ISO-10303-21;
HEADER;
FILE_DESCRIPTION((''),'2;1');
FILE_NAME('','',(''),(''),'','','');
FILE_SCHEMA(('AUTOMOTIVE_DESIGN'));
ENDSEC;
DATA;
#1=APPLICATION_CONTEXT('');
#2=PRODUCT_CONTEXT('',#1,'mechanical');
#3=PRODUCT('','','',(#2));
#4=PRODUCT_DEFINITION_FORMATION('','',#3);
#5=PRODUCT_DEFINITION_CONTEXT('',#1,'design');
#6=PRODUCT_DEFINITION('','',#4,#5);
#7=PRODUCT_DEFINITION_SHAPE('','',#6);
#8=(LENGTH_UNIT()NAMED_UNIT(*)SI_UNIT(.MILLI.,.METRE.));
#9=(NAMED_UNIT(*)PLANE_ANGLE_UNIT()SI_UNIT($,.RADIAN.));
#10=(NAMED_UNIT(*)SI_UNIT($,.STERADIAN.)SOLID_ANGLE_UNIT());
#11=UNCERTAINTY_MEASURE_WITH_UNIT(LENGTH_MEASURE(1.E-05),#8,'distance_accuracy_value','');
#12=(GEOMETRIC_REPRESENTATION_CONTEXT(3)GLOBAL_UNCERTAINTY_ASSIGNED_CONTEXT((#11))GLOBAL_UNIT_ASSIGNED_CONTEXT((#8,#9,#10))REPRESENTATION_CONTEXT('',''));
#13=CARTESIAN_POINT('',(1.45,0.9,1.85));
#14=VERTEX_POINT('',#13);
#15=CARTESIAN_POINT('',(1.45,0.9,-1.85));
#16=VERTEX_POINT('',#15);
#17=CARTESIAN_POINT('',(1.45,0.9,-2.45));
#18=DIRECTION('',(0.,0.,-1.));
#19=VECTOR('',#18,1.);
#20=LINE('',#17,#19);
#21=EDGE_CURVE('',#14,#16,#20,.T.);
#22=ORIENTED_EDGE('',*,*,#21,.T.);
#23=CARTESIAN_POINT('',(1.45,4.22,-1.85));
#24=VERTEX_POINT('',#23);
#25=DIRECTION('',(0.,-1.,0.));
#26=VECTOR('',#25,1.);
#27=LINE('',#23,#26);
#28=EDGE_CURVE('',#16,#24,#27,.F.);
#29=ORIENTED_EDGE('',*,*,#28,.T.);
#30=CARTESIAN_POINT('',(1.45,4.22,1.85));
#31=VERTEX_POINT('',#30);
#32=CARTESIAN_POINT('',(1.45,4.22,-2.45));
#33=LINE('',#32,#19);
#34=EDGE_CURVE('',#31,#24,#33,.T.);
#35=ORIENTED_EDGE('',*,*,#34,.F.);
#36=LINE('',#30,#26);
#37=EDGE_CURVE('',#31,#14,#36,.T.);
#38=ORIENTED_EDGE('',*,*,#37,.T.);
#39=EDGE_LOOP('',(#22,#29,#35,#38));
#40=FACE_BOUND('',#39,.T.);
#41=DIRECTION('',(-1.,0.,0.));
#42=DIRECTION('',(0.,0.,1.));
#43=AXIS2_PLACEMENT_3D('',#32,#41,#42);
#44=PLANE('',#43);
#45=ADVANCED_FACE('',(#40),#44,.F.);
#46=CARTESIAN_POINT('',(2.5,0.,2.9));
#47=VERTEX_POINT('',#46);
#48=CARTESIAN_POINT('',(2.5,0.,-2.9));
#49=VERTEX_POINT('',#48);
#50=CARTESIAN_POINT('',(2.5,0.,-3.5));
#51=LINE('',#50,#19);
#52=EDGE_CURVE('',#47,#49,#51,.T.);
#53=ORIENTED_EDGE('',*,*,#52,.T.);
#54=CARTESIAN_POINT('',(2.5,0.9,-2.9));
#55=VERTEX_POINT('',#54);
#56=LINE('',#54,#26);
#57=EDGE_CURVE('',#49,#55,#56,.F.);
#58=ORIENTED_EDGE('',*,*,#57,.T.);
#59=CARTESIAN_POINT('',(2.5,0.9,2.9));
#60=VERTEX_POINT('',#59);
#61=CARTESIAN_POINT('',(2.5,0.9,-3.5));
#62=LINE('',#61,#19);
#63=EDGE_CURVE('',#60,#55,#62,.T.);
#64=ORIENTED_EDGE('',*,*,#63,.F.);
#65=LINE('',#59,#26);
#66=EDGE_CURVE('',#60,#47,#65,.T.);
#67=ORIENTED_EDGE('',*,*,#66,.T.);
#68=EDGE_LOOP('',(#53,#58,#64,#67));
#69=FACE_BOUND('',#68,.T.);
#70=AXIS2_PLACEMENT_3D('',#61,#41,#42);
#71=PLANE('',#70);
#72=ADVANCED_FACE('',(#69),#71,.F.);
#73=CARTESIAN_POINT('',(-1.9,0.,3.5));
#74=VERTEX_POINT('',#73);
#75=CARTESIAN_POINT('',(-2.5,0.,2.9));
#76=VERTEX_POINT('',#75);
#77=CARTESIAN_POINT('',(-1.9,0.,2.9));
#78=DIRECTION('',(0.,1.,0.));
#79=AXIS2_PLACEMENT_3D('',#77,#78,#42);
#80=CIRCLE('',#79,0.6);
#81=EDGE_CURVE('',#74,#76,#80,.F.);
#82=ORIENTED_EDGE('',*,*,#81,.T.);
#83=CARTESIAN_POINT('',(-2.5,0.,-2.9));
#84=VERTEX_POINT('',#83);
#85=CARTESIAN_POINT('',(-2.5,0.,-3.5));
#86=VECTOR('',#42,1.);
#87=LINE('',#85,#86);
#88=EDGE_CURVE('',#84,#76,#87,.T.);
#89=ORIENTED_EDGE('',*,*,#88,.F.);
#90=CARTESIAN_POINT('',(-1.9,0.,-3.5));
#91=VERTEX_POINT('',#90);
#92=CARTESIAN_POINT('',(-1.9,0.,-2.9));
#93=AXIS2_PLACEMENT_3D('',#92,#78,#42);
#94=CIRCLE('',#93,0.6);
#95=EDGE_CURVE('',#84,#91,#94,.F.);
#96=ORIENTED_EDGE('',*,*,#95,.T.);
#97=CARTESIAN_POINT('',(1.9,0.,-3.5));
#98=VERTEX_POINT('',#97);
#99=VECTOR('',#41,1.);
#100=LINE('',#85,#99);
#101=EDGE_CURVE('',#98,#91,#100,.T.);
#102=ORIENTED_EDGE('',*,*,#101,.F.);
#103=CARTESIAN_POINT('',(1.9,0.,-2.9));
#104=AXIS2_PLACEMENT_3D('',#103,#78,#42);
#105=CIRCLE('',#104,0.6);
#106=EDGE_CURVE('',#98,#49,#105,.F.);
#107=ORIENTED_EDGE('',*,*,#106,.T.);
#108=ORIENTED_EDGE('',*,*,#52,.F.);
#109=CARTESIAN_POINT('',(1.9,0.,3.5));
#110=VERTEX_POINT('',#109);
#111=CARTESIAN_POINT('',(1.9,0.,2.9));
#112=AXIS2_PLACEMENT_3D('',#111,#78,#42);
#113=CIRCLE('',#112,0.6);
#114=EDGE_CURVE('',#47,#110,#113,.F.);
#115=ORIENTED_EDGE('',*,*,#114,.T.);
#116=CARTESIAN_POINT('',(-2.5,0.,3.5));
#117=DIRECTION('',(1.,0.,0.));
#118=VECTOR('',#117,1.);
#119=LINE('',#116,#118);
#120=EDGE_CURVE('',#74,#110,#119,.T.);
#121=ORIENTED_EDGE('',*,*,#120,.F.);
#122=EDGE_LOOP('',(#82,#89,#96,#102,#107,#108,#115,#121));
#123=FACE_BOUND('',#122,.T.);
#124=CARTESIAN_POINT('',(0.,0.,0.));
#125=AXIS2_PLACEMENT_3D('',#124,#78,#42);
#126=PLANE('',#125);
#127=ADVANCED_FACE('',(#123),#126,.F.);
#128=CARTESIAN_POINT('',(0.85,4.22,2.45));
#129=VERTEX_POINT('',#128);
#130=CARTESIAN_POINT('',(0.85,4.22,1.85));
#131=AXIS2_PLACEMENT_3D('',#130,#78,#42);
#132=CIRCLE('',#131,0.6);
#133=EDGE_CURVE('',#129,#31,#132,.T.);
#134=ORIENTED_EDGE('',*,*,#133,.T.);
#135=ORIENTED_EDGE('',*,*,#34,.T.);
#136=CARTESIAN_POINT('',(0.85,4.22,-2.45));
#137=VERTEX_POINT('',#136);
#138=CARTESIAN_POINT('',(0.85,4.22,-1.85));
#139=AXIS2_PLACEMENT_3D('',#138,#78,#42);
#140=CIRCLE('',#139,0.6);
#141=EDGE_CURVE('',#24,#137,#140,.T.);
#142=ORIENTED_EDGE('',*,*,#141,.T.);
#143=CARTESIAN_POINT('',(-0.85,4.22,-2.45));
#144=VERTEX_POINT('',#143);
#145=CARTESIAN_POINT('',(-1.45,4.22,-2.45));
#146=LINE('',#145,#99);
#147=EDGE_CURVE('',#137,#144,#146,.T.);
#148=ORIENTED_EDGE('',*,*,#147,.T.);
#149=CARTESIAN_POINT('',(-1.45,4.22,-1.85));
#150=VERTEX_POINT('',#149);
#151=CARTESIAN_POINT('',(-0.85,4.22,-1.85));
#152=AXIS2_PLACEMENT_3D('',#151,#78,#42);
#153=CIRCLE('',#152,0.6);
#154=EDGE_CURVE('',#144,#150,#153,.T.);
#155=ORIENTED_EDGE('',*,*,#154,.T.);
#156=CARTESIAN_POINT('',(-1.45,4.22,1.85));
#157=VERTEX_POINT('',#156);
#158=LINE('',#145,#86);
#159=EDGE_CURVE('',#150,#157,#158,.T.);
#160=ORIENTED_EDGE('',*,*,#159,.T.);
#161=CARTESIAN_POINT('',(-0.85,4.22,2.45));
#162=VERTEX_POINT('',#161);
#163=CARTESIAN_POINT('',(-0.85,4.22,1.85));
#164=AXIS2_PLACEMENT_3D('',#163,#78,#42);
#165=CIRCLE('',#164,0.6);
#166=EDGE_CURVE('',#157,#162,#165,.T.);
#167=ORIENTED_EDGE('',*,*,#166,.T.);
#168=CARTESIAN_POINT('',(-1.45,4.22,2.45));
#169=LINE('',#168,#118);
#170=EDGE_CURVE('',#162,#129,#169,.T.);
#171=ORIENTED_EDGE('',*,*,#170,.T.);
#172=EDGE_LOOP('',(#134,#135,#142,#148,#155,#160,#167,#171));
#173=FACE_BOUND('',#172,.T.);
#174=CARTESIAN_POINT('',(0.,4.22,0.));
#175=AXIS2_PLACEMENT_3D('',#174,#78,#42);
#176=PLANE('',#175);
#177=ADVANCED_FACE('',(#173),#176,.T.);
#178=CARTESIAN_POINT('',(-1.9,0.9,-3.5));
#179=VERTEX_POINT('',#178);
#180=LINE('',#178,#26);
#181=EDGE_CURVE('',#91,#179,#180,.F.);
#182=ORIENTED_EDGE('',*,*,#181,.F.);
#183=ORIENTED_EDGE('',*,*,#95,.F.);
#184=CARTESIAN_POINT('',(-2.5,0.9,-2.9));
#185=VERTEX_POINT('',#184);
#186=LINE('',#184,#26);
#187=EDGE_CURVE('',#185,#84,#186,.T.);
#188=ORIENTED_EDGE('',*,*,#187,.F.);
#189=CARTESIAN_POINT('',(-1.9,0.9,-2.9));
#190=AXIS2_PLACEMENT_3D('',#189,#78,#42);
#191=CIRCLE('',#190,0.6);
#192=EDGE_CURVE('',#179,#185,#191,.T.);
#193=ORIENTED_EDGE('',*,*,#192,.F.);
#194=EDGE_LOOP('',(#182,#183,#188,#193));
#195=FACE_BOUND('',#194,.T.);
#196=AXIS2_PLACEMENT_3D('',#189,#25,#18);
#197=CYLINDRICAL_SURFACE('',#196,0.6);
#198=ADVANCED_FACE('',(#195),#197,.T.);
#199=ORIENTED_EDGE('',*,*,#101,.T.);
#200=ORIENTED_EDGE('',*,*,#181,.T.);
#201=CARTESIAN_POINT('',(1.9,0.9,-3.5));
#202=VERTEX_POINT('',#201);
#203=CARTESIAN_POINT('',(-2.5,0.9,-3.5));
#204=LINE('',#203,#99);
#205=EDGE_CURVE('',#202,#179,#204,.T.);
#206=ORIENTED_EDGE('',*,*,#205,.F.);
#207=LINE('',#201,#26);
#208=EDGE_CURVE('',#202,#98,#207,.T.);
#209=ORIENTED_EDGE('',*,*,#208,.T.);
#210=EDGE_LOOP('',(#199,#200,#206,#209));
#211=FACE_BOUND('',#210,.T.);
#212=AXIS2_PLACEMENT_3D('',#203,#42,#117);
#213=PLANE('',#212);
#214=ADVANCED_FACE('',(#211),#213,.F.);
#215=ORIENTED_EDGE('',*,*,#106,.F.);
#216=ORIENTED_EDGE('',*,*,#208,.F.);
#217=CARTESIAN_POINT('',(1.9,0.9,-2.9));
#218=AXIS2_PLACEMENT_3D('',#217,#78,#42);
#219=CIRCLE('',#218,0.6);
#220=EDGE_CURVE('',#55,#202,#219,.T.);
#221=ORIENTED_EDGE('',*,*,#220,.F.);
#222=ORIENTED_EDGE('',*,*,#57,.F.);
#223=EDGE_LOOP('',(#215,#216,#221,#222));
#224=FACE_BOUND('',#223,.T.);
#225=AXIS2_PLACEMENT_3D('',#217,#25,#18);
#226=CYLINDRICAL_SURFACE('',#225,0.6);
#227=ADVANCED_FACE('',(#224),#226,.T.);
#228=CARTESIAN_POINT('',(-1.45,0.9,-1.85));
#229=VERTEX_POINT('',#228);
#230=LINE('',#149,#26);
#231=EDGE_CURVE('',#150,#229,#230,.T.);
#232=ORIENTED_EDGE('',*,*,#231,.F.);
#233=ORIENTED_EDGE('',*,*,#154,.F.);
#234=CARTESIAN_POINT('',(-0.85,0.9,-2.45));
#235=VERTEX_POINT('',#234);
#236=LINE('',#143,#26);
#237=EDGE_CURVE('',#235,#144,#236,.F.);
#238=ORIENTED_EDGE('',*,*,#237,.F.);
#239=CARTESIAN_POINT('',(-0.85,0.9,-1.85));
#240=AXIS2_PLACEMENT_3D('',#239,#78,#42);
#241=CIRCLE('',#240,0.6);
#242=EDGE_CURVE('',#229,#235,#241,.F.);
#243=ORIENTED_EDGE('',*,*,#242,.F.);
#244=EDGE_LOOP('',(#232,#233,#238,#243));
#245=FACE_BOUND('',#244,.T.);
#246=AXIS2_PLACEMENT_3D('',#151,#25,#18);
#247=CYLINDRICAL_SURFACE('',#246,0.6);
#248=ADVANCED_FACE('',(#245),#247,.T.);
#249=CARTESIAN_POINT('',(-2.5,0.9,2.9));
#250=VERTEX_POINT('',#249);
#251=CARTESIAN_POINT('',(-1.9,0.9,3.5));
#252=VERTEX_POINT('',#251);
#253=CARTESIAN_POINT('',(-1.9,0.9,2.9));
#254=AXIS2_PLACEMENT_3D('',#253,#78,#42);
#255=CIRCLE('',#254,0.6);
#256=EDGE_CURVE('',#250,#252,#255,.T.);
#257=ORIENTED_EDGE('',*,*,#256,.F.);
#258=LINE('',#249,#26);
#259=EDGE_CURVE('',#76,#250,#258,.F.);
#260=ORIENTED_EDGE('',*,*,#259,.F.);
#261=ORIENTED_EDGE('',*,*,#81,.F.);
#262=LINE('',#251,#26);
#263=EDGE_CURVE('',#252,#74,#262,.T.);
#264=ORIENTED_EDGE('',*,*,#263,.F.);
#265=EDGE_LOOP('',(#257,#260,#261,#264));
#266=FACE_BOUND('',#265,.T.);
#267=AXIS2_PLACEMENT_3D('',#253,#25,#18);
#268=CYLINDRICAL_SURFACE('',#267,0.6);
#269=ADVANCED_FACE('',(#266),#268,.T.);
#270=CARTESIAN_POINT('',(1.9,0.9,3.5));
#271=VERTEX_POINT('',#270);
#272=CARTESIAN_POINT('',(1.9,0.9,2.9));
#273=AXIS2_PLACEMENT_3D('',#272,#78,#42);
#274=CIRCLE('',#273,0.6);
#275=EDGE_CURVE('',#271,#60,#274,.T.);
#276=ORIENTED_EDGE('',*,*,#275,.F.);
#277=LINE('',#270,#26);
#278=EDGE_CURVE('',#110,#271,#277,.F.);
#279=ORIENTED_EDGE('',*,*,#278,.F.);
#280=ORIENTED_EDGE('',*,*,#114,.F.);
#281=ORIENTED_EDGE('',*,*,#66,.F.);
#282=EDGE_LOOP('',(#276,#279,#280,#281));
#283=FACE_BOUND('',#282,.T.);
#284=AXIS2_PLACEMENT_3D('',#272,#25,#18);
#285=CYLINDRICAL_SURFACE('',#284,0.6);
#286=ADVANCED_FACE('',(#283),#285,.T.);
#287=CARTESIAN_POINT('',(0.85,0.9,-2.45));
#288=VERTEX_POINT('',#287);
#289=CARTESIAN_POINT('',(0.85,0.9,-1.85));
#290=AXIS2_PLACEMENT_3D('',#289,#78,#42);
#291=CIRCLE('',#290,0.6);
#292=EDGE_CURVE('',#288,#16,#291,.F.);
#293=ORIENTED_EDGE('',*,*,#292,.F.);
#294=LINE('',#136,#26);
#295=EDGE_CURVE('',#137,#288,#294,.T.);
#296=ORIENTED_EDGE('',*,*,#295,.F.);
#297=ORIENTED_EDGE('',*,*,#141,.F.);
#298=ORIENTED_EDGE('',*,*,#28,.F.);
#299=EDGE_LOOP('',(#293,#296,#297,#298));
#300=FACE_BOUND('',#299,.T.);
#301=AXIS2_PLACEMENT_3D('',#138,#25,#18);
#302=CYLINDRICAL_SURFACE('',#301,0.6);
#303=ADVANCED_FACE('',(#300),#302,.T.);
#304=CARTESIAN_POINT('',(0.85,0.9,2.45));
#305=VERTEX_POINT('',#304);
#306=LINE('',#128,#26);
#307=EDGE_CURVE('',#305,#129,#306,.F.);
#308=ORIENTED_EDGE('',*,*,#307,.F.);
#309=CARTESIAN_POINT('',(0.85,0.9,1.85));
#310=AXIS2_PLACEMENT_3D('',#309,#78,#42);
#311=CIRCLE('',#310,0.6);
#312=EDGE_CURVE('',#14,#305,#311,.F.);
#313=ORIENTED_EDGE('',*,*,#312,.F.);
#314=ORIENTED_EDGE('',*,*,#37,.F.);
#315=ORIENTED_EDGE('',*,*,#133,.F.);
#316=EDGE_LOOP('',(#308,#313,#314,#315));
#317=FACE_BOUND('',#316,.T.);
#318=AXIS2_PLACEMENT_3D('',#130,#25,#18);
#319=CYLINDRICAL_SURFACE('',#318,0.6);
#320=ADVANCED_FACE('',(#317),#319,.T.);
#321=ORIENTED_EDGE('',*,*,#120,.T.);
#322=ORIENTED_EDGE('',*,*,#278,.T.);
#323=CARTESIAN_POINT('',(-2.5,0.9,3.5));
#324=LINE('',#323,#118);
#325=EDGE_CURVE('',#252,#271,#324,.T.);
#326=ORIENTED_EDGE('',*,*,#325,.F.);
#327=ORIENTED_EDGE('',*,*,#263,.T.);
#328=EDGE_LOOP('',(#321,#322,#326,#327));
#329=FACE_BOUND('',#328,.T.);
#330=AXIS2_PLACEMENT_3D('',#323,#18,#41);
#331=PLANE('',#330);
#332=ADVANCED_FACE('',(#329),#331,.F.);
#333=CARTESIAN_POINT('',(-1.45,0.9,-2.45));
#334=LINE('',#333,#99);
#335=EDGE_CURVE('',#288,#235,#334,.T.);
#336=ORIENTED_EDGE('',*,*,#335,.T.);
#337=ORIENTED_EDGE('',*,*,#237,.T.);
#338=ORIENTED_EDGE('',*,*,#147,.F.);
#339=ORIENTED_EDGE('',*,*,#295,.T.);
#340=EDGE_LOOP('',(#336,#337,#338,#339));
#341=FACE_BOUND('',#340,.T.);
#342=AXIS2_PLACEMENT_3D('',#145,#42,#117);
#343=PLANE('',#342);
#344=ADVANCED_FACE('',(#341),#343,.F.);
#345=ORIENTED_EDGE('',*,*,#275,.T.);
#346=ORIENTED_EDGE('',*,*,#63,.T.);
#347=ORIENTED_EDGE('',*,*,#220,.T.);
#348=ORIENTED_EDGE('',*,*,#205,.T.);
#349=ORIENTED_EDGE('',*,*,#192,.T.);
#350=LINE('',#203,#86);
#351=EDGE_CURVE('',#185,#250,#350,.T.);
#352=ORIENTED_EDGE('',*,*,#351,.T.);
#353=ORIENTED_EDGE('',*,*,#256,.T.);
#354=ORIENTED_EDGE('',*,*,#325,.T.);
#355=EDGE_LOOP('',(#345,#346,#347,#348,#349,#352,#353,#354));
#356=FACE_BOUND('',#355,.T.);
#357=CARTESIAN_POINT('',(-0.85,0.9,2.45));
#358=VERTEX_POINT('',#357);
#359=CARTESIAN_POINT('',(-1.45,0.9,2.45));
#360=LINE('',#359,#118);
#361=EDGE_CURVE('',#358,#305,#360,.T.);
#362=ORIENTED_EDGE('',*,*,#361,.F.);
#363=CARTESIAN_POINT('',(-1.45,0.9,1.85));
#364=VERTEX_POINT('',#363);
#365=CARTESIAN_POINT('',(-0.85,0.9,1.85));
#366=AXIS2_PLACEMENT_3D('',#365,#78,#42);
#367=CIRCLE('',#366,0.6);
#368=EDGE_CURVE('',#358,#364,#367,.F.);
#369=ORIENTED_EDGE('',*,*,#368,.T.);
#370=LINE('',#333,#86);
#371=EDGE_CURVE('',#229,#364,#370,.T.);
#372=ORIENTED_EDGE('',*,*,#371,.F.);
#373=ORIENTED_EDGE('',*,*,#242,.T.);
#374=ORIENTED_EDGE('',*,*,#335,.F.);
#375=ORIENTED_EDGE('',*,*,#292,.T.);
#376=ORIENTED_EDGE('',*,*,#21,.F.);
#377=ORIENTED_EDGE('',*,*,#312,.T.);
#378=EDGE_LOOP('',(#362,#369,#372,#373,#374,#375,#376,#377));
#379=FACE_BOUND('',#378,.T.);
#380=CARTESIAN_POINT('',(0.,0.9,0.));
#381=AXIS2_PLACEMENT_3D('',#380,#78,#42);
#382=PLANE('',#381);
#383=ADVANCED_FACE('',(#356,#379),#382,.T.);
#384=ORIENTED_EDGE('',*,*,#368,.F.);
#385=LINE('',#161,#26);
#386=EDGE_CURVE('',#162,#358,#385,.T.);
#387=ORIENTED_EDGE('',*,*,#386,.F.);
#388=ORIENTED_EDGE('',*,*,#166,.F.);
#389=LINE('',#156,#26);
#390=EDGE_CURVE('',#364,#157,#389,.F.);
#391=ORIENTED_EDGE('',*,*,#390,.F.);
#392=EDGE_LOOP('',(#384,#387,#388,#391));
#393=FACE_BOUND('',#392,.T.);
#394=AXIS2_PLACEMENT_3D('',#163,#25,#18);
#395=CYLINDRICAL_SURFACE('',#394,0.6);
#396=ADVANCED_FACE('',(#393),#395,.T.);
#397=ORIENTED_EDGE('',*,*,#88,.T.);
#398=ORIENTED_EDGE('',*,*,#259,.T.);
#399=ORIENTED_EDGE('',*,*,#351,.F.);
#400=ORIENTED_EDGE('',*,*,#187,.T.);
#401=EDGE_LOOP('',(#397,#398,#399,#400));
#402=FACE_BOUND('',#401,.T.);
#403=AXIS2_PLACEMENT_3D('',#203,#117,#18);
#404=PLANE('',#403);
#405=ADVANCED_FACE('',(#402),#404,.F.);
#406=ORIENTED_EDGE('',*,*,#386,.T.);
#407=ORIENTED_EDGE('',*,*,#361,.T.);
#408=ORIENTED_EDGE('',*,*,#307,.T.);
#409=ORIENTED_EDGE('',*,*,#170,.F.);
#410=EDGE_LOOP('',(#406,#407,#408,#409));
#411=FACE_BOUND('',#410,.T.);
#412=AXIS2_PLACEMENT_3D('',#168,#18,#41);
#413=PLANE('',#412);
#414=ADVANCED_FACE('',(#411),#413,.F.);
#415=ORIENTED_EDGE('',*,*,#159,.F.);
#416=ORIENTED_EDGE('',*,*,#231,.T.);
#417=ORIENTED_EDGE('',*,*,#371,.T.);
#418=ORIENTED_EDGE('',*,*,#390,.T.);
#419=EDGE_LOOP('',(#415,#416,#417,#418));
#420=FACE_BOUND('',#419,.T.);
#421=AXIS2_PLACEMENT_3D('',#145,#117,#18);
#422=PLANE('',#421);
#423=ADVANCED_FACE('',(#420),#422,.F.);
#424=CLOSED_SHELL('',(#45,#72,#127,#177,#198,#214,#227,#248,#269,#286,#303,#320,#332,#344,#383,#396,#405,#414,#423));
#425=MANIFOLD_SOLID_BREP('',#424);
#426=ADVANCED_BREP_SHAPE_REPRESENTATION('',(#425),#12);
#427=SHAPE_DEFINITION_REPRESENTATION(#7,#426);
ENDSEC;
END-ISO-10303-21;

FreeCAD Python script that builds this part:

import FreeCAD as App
import Part
import Sketcher

V = App.Vector
Q = App.Units.Quantity


def edges_at(feature, points):
    """Names of the edges that pass closest to the given points."""
    edges = feature.Shape.Edges
    near = lambda p: min(range(len(edges)), key=lambda i: edges[i].distToShape(Part.Vertex(*p))[0])
    return sorted({f"Edge{near(p) + 1}" for p in points})

doc = App.newDocument("Part")
params = doc.addObject("Spreadsheet::Sheet", "Params")
for row, (alias, value) in enumerate([
    ("sketch1_width", "5 mm"),
    ("sketch1_height", "7 mm"),
    ("pad1_length", "0.9 mm"),
    ("sketch2_width", "2.9 mm"),
    ("sketch2_height", "4.9 mm"),
    ("pad2_length", "3.32 mm"),
    ("fillet_radius", "0.6 mm"),
], start=1):
    params.set(f"A{row}", alias)
    params.set(f"B{row}", "=" + value)
    params.setAlias(f"B{row}", alias)

body = doc.addObject("PartDesign::Body", "Body")

# Sketch on XZ plane
sketch1 = doc.addObject("Sketcher::SketchObject", "Sketch")
body.addObject(sketch1)
sketch1.AttachmentSupport = (doc.XZ_Plane, [""])
sketch1.MapMode = "FlatFace"
sketch1.addGeometry(Part.LineSegment(V(-2, -4, 0), V(-2, 4, 0)), False)
sketch1.addGeometry(Part.LineSegment(V(-2, 4, 0), V(2, 4, 0)), False)
sketch1.addGeometry(Part.LineSegment(V(2, 4, 0), V(2, -4, 0)), False)
sketch1.addGeometry(Part.LineSegment(V(2, -4, 0), V(-2, -4, 0)), False)
sketch1.addConstraint(Sketcher.Constraint("Coincident", 0, 2, 1, 1))
sketch1.addConstraint(Sketcher.Constraint("Coincident", 1, 2, 2, 1))
sketch1.addConstraint(Sketcher.Constraint("Coincident", 2, 2, 3, 1))
sketch1.addConstraint(Sketcher.Constraint("Coincident", 3, 2, 0, 1))
sketch1.addConstraint(Sketcher.Constraint("Vertical", 0))
sketch1.addConstraint(Sketcher.Constraint("Horizontal", 1))
sketch1.addConstraint(Sketcher.Constraint("Vertical", 2))
sketch1.addConstraint(Sketcher.Constraint("Horizontal", 3))
sketch1.addConstraint(Sketcher.Constraint("Symmetric", 0, 2, 2, 2, -1, 1))
sketch1.addConstraint(Sketcher.Constraint("DistanceX", 1, 1, 1, 2, Q("5 mm")))
sketch1.addConstraint(Sketcher.Constraint("DistanceY", 0, 1, 0, 2, Q("7 mm")))
sketch1.setExpression("Constraints[9]", "Params.sketch1_width")
sketch1.setExpression("Constraints[10]", "Params.sketch1_height")
pad1 = doc.addObject("PartDesign::Pad", "Pad")
body.addObject(pad1)
pad1.Profile = sketch1
pad1.setExpression("Length", "Params.pad1_length")
pad1.Reversed = True

# Sketch on XZ plane
sketch2 = doc.addObject("Sketcher::SketchObject", "Sketch001")
body.addObject(sketch2)
sketch2.AttachmentSupport = (doc.XZ_Plane, [""])
sketch2.MapMode = "FlatFace"
sketch2.AttachmentOffset = App.Placement(V(0, 0, -0.9), App.Rotation())
sketch2.addGeometry(Part.LineSegment(V(-1.4, -2.5, 0), V(-1.4, 2.5, 0)), False)
sketch2.addGeometry(Part.LineSegment(V(-1.4, 2.5, 0), V(1.4, 2.5, 0)), False)
sketch2.addGeometry(Part.LineSegment(V(1.4, 2.5, 0), V(1.4, -2.5, 0)), False)
sketch2.addGeometry(Part.LineSegment(V(1.4, -2.5, 0), V(-1.4, -2.5, 0)), False)
sketch2.addConstraint(Sketcher.Constraint("Coincident", 0, 2, 1, 1))
sketch2.addConstraint(Sketcher.Constraint("Coincident", 1, 2, 2, 1))
sketch2.addConstraint(Sketcher.Constraint("Coincident", 2, 2, 3, 1))
sketch2.addConstraint(Sketcher.Constraint("Coincident", 3, 2, 0, 1))
sketch2.addConstraint(Sketcher.Constraint("Vertical", 0))
sketch2.addConstraint(Sketcher.Constraint("Horizontal", 1))
sketch2.addConstraint(Sketcher.Constraint("Vertical", 2))
sketch2.addConstraint(Sketcher.Constraint("Horizontal", 3))
sketch2.addConstraint(Sketcher.Constraint("Symmetric", 0, 2, 2, 2, -1, 1))
sketch2.addConstraint(Sketcher.Constraint("DistanceX", 1, 1, 1, 2, Q("2.9 mm")))
sketch2.addConstraint(Sketcher.Constraint("DistanceY", 0, 1, 0, 2, Q("4.9 mm")))
sketch2.setExpression("Constraints[9]", "Params.sketch2_width")
sketch2.setExpression("Constraints[10]", "Params.sketch2_height")
pad2 = doc.addObject("PartDesign::Pad", "Pad001")
body.addObject(pad2)
pad2.Profile = sketch2
pad2.setExpression("Length", "Params.pad2_length")
pad2.Reversed = True
doc.recompute()

fillet = doc.addObject("PartDesign::Fillet", "Fillet")
body.addObject(fillet)
fillet.Base = (pad2, edges_at(pad2, [
    (1.45, 2.56, 2.45),
    (1.45, 2.56, -2.45),
    (-1.45, 2.56, -2.45),
    (-1.45, 2.56, 2.45),
    (2.5, 0.45, 3.5),
    (-2.5, 0.45, 3.5),
    (-2.5, 0.45, -3.5),
    (2.5, 0.45, -3.5),
]))
fillet.setExpression("Radius", "Params.fillet_radius")

doc.recompute()
